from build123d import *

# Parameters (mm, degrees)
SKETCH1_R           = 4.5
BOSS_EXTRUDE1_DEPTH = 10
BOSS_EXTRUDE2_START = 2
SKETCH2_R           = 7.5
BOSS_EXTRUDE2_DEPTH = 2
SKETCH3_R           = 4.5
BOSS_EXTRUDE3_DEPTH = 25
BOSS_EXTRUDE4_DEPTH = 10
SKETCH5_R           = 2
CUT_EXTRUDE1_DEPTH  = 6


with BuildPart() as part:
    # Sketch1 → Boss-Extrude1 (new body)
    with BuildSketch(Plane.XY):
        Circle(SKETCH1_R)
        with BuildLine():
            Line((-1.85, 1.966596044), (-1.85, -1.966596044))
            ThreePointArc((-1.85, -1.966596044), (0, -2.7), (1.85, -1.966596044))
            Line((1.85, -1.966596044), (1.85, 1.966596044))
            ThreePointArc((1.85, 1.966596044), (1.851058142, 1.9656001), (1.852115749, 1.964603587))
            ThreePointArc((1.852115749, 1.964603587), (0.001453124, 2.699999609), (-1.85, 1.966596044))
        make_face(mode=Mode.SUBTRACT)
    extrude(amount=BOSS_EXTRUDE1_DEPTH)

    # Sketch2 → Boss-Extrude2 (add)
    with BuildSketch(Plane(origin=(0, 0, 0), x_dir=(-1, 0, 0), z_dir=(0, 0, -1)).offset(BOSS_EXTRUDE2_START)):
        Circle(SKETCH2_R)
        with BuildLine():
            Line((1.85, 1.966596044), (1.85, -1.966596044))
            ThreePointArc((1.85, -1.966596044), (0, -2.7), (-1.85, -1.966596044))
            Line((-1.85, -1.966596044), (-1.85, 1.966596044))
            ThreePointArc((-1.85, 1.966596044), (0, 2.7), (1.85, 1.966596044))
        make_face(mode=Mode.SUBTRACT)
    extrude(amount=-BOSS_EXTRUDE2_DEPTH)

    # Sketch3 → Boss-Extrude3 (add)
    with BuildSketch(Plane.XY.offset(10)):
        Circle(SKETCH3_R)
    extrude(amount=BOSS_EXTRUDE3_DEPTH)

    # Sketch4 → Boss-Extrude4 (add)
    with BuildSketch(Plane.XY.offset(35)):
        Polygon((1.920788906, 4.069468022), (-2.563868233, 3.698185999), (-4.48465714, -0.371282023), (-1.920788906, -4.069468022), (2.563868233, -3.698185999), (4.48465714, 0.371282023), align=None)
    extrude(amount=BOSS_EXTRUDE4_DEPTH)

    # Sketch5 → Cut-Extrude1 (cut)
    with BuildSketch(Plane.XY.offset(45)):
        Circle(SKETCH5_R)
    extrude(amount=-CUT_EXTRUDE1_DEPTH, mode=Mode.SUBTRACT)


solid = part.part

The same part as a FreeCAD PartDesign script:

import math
import FreeCAD as App
import Part
import Sketcher
Q = App.Units.Quantity


def add_polygon(sketch, points):
    """Adds a closed chain of lines whose ends are joined by coincident constraints."""
    first, n = sketch.GeometryCount, len(points)
    for a, b in zip(points, points[1:] + points[:1]):
        sketch.addGeometry(Part.LineSegment(App.Vector(*a, 0), App.Vector(*b, 0)), False)
    for i in range(n):
        sketch.addConstraint(Sketcher.Constraint("Coincident", first + i, 2, first + (i + 1) % n, 1))

doc = App.newDocument("Part")
params = doc.addObject("Spreadsheet::Sheet", "Params")
for row, (alias, value) in enumerate([
    ("sketch1_diameter", "9 mm"),
    ("sketch1_radius", "2.7 mm"),
    ("pad1_length", "10 mm"),
    ("sketch2_diameter", "15 mm"),
    ("sketch2_radius", "2.7 mm"),
    ("pad2_length", "2 mm"),
    ("sketch3_diameter", "9 mm"),
    ("pad3_length", "25 mm"),
    ("sketch4_length", "4.5 mm"),
    ("pad4_length", "10 mm"),
    ("sketch5_diameter", "4 mm"),
    ("pocket1_length", "6 mm"),
], start=1):
    params.set(f"A{row}", alias)
    params.set(f"B{row}", "=" + value)
    params.setAlias(f"B{row}", alias)

body = doc.addObject("PartDesign::Body", "Body")

# Sketch on XY plane
sketch1 = body.newObject("Sketcher::SketchObject", "Sketch")
sketch1.AttachmentSupport = (doc.getObject("XY_Plane"), [""])
sketch1.MapMode = "FlatFace"
sketch1.addGeometry(Part.Circle(App.Vector(0, 0, 0), App.Vector(0, 0, 1), 4.5), False)
sketch1.addGeometry(Part.LineSegment(App.Vector(-1.9, -2, 0), App.Vector(-1.9, 2, 0)), False)
sketch1.addGeometry(Part.ArcOfCircle(Part.Circle(App.Vector(0, 0, 0), App.Vector(0, 0, 1), 2.7), math.radians(47), math.radians(133)), False)
sketch1.addGeometry(Part.LineSegment(App.Vector(1.9, 2, 0), App.Vector(1.9, -2, 0)), False)
sketch1.addGeometry(Part.ArcOfCircle(Part.Circle(App.Vector(0, 0, 0), App.Vector(0, 0, 1), 2.7), math.radians(-133), math.radians(-47)), False)
sketch1.addConstraint(Sketcher.Constraint("Coincident", 1, 2, 2, 2))
sketch1.addConstraint(Sketcher.Constraint("Coincident", 2, 1, 3, 1))
sketch1.addConstraint(Sketcher.Constraint("Coincident", 3, 2, 4, 2))
sketch1.addConstraint(Sketcher.Constraint("Coincident", 4, 1, 1, 1))
sketch1.addConstraint(Sketcher.Constraint("Vertical", 1))
sketch1.addConstraint(Sketcher.Constraint("Vertical", 3))
sketch1.addConstraint(Sketcher.Constraint("Coincident", 0, 3, -1, 1))
sketch1.addConstraint(Sketcher.Constraint("Coincident", 2, 3, -1, 1))
sketch1.addConstraint(Sketcher.Constraint("Coincident", 4, 3, -1, 1))
sketch1.addConstraint(Sketcher.Constraint("Equal", 2, 4))
sketch1.addConstraint(Sketcher.Constraint("Horizontal", 1, 2, 2, 1))
sketch1.addConstraint(Sketcher.Constraint("Diameter", 0, Q("9 mm")))
sketch1.addConstraint(Sketcher.Constraint("Radius", 2, Q("2.7 mm")))
sketch1.addConstraint(Sketcher.Constraint("DistanceX", 1, 2, 2, 1, Q("3.7 mm")))
sketch1.setExpression("Constraints[11]", "Params.sketch1_diameter")
sketch1.setExpression("Constraints[12]", "Params.sketch1_radius")
pad1 = body.newObject("PartDesign::Pad", "Pad")
pad1.Profile = sketch1
pad1.setExpression("Length", "Params.pad1_length")

# Sketch on XY plane
sketch2 = body.newObject("Sketcher::SketchObject", "Sketch001")
sketch2.AttachmentSupport = (doc.getObject("XY_Plane"), [""])
sketch2.MapMode = "FlatFace"
sketch2.AttachmentOffset = App.Placement(App.Vector(0, 0, -2), App.Rotation())
sketch2.addGeometry(Part.Circle(App.Vector(0, 0, 0), App.Vector(0, 0, 1), 7.5), False)
sketch2.addGeometry(Part.ArcOfCircle(Part.Circle(App.Vector(0, 0, 0), App.Vector(0, 0, 1), 2.7), math.radians(47), math.radians(133)), False)
sketch2.addGeometry(Part.LineSegment(App.Vector(-1.9, 2, 0), App.Vector(-1.9, -2, 0)), False)
sketch2.addGeometry(Part.ArcOfCircle(Part.Circle(App.Vector(0, 0, 0), App.Vector(0, 0, 1), 2.7), math.radians(-133), math.radians(-47)), False)
sketch2.addGeometry(Part.LineSegment(App.Vector(1.9, -2, 0), App.Vector(1.9, 2, 0)), False)
sketch2.addConstraint(Sketcher.Constraint("Coincident", 1, 2, 2, 1))
sketch2.addConstraint(Sketcher.Constraint("Coincident", 2, 2, 3, 1))
sketch2.addConstraint(Sketcher.Constraint("Coincident", 3, 2, 4, 1))
sketch2.addConstraint(Sketcher.Constraint("Coincident", 4, 2, 1, 1))
sketch2.addConstraint(Sketcher.Constraint("Vertical", 2))
sketch2.addConstraint(Sketcher.Constraint("Vertical", 4))
sketch2.addConstraint(Sketcher.Constraint("Coincident", 0, 3, -1, 1))
sketch2.addConstraint(Sketcher.Constraint("Coincident", 1, 3, -1, 1))
sketch2.addConstraint(Sketcher.Constraint("Coincident", 3, 3, -1, 1))
sketch2.addConstraint(Sketcher.Constraint("Equal", 1, 3))
sketch2.addConstraint(Sketcher.Constraint("Horizontal", 2, 2, 3, 2))
sketch2.addConstraint(Sketcher.Constraint("Diameter", 0, Q("15 mm")))
sketch2.addConstraint(Sketcher.Constraint("Radius", 1, Q("2.7 mm")))
sketch2.addConstraint(Sketcher.Constraint("DistanceX", 2, 2, 3, 2, Q("3.7 mm")))
sketch2.setExpression("Constraints[11]", "Params.sketch2_diameter")
sketch2.setExpression("Constraints[12]", "Params.sketch2_radius")
pad2 = body.newObject("PartDesign::Pad", "Pad001")
pad2.Profile = sketch2
pad2.setExpression("Length", "Params.pad2_length")

# Sketch on XY plane
sketch3 = body.newObject("Sketcher::SketchObject", "Sketch002")
sketch3.AttachmentSupport = (doc.getObject("XY_Plane"), [""])
sketch3.MapMode = "FlatFace"
sketch3.AttachmentOffset = App.Placement(App.Vector(0, 0, 10), App.Rotation())
sketch3.addGeometry(Part.Circle(App.Vector(0, 0, 0), App.Vector(0, 0, 1), 4.5), False)
sketch3.addConstraint(Sketcher.Constraint("Coincident", 0, 3, -1, 1))
sketch3.addConstraint(Sketcher.Constraint("Diameter", 0, Q("9 mm")))
sketch3.setExpression("Constraints[1]", "Params.sketch3_diameter")
pad3 = body.newObject("PartDesign::Pad", "Pad002")
pad3.Profile = sketch3
pad3.setExpression("Length", "Params.pad3_length")

# Sketch on XY plane
sketch4 = body.newObject("Sketcher::SketchObject", "Sketch003")
sketch4.AttachmentSupport = (doc.getObject("XY_Plane"), [""])
sketch4.MapMode = "FlatFace"
sketch4.AttachmentOffset = App.Placement(App.Vector(0, 0, 35), App.Rotation())
add_polygon(sketch4, [(1.9, 4.1), (-2.6, 3.7), (-4.5, -0.4), (-1.9, -4.1), (2.6, -3.7), (4.5, 0.4)])  # lines 0-5
sketch4.addConstraint(Sketcher.Constraint("Symmetric", 0, 2, 3, 2, -1, 1))
sketch4.addConstraint(Sketcher.Constraint("Symmetric", 1, 2, 4, 2, -1, 1))
sketch4.addConstraint(Sketcher.Constraint("Symmetric", 2, 2, 5, 2, -1, 1))
sketch4.addConstraint(Sketcher.Constraint("Equal", 0, 1))
sketch4.addConstraint(Sketcher.Constraint("Equal", 1, 2))
sketch4.addConstraint(Sketcher.Constraint("Distance", 0, Q("4.5 mm")))
sketch4.addConstraint(Sketcher.Constraint("DistanceX", 0, 2, -1, 1, Q("2.563868 mm")))
sketch4.addConstraint(Sketcher.Constraint("DistanceX", 2, 2, -1, 1, Q("1.920789 mm")))
sketch4.addConstraint(Sketcher.Constraint("DistanceY", 2, 2, -1, 1, Q("4.069468 mm")))
sketch4.setExpression("Constraints[11]", "Params.sketch4_length")
pad4 = body.newObject("PartDesign::Pad", "Pad003")
pad4.Profile = sketch4
pad4.setExpression("Length", "Params.pad4_length")

# Sketch on XY plane
sketch5 = body.newObject("Sketcher::SketchObject", "Sketch004")
sketch5.AttachmentSupport = (doc.getObject("XY_Plane"), [""])
sketch5.MapMode = "FlatFace"
sketch5.AttachmentOffset = App.Placement(App.Vector(0, 0, 45), App.Rotation())
sketch5.addGeometry(Part.Circle(App.Vector(0, 0, 0), App.Vector(0, 0, 1), 2), False)
sketch5.addConstraint(Sketcher.Constraint("Coincident", 0, 3, -1, 1))
sketch5.addConstraint(Sketcher.Constraint("Diameter", 0, Q("4 mm")))
sketch5.setExpression("Constraints[1]", "Params.sketch5_diameter")
pocket1 = body.newObject("PartDesign::Pocket", "Pocket")
pocket1.Profile = sketch5
pocket1.setExpression("Length", "Params.pocket1_length")

doc.recompute()
